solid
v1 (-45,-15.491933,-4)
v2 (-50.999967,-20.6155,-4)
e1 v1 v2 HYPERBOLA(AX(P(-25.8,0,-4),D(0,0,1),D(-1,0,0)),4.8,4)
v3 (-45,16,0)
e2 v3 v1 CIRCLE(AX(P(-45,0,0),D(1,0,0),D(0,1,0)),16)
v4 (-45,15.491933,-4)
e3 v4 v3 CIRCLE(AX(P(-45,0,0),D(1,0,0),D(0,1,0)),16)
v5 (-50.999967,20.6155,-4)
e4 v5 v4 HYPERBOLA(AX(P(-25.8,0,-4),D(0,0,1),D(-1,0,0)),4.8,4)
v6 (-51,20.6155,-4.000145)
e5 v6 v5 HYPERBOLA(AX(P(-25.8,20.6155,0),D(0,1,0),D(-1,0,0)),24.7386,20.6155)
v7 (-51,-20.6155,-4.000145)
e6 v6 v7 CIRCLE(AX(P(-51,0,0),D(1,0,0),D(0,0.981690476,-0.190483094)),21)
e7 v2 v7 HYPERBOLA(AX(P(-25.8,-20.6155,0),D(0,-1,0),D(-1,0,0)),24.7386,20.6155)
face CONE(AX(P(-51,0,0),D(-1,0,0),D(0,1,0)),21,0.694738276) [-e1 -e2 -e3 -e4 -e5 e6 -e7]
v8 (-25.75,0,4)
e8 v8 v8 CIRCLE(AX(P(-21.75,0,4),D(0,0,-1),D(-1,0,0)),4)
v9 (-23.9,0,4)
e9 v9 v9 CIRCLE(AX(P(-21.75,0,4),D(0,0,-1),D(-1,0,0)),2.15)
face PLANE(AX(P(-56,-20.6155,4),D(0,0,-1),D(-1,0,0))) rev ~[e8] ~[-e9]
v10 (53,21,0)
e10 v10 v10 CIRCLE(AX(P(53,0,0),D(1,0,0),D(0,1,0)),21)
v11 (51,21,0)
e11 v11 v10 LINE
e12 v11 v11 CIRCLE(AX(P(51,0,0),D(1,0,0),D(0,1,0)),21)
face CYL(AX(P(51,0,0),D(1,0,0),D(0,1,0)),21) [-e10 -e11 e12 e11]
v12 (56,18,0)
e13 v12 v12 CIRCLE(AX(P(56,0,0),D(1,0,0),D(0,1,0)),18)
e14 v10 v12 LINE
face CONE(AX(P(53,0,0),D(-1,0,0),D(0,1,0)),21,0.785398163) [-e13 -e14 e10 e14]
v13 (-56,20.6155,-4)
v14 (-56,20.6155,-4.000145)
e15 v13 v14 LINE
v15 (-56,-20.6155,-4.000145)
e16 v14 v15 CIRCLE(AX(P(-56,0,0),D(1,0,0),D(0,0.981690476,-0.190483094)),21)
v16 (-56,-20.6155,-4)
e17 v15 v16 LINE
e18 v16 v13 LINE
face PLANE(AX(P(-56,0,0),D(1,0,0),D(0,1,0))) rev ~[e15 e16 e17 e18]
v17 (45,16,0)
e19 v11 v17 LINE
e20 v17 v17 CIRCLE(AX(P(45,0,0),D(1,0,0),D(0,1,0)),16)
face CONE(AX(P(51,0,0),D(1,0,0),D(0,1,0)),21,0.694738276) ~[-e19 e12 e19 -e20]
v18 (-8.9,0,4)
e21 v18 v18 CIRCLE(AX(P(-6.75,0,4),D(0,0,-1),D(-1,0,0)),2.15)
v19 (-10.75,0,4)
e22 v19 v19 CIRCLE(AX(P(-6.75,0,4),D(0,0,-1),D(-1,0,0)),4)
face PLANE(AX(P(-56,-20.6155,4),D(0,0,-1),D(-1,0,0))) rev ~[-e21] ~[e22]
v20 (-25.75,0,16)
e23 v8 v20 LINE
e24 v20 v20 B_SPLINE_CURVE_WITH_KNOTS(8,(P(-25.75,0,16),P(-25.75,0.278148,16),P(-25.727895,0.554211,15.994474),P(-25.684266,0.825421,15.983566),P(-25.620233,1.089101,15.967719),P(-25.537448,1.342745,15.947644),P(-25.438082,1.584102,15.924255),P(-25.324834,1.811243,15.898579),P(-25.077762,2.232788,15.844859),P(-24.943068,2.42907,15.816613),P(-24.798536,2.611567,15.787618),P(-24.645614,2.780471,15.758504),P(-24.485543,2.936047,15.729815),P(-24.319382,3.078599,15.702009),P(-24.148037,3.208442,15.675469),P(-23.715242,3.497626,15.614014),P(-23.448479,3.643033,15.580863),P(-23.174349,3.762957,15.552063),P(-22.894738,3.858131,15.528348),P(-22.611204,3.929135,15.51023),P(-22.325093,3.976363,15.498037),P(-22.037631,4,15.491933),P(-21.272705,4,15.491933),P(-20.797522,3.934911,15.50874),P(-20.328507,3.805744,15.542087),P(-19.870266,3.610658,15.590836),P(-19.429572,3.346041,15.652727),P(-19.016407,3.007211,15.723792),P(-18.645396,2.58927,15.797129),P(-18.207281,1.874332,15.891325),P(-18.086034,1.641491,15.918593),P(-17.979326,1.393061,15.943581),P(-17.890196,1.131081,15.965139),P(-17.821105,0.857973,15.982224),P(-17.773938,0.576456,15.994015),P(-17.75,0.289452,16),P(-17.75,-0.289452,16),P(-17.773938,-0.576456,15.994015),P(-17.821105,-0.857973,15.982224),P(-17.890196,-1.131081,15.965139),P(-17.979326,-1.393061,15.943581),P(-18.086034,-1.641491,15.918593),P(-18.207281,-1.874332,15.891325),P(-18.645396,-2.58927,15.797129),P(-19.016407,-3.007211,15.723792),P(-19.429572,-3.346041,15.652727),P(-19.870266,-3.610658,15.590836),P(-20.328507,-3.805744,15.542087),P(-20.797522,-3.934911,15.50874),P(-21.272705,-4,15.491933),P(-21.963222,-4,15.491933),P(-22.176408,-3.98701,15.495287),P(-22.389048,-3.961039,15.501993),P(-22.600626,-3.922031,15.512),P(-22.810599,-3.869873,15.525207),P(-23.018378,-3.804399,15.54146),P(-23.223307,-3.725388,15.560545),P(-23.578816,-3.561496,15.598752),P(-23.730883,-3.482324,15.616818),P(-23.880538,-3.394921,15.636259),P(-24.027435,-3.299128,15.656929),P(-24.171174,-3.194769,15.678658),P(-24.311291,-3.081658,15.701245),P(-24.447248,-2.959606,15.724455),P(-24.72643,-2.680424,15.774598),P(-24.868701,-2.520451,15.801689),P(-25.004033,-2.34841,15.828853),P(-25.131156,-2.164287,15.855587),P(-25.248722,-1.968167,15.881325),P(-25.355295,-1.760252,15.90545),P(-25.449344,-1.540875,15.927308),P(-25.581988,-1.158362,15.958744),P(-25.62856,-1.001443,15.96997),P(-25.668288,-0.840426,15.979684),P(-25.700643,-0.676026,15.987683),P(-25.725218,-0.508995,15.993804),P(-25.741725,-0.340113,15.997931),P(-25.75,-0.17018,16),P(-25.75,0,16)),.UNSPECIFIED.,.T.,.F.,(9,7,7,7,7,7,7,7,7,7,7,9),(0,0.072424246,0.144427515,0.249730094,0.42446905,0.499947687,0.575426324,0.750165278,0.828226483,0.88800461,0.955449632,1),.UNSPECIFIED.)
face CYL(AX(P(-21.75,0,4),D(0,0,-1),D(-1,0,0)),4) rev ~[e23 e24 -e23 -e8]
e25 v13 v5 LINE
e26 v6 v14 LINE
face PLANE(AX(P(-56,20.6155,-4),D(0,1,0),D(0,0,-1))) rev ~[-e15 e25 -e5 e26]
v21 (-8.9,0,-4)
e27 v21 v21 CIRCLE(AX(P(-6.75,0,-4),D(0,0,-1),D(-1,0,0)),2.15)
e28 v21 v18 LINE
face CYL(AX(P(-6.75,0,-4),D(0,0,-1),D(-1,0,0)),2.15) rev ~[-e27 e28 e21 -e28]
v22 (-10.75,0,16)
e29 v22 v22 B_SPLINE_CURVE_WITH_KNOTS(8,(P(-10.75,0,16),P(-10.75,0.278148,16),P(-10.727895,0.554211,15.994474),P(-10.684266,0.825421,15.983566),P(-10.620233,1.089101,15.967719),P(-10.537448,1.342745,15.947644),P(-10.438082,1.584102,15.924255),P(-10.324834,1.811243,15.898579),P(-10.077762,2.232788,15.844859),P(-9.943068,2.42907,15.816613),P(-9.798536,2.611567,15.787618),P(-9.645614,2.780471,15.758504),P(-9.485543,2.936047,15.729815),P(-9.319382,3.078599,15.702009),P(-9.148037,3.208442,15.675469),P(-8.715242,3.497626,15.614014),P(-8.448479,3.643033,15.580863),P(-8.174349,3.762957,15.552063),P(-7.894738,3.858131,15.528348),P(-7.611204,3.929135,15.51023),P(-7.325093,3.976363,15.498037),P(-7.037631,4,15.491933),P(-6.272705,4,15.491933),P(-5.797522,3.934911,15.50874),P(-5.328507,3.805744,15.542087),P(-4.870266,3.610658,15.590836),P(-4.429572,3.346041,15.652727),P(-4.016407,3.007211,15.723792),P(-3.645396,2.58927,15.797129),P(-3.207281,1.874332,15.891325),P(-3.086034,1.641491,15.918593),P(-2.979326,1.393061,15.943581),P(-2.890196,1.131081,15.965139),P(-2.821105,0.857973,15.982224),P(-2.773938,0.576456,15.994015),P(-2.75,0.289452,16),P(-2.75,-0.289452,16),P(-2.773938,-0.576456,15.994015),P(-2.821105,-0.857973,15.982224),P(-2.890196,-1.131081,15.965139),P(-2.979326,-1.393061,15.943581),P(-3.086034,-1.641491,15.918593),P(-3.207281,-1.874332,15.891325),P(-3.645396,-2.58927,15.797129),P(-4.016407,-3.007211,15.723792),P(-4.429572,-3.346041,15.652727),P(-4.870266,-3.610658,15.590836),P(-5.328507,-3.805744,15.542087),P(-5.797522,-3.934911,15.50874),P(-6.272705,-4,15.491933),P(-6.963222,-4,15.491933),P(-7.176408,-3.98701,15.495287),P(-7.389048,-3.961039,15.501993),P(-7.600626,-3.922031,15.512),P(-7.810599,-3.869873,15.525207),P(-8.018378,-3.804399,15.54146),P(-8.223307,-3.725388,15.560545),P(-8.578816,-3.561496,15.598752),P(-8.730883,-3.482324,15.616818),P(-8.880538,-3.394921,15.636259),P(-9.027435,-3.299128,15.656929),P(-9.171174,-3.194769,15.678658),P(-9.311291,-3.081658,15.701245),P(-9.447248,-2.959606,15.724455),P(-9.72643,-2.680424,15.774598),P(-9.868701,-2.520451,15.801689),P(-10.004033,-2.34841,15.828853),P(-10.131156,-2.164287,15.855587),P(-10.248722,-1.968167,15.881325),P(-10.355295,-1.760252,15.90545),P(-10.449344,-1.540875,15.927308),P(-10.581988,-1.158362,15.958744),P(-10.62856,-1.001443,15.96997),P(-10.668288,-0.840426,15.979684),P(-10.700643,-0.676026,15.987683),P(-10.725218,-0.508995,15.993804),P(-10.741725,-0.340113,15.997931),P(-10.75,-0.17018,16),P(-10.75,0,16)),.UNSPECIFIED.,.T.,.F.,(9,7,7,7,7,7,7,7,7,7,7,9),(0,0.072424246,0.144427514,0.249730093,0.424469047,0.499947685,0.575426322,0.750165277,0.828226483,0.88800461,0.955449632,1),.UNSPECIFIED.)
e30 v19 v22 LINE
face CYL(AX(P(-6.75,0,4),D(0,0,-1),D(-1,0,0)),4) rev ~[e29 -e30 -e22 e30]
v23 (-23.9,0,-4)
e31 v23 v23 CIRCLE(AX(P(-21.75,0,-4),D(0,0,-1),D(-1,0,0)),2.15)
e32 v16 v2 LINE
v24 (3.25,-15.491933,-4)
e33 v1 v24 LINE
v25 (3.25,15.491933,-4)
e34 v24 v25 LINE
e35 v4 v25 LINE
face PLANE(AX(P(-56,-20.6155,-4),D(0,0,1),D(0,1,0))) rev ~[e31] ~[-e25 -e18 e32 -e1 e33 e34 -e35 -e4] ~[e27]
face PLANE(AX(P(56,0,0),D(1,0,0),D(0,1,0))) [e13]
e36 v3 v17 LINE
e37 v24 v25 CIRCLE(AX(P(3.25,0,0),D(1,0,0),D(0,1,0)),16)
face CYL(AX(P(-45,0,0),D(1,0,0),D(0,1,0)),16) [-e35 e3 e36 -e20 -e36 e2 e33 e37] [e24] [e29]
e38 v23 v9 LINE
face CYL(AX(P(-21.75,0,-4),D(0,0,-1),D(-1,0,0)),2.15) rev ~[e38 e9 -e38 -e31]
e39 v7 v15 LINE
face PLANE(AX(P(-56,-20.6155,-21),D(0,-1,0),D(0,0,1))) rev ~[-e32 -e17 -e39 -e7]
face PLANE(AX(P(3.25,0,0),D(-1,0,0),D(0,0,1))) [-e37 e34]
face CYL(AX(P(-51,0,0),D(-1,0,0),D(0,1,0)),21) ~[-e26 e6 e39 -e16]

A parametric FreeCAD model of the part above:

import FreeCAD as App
import Part
import Sketcher

V = App.Vector
Q = App.Units.Quantity


def edges_at(feature, points):
    """Names of the edges that pass closest to the given points."""
    edges = feature.Shape.Edges
    near = lambda p: min(range(len(edges)), key=lambda i: edges[i].distToShape(Part.Vertex(*p))[0])
    return sorted({f"Edge{near(p) + 1}" for p in points})


def add_polygon(sketch, points):
    """Adds a closed chain of lines whose ends are joined by coincident constraints."""
    first, n = sketch.GeometryCount, len(points)
    for a, b in zip(points, points[1:] + points[:1]):
        sketch.addGeometry(Part.LineSegment(App.Vector(*a, 0), App.Vector(*b, 0)), False)
    for i in range(n):
        sketch.addConstraint(Sketcher.Constraint("Coincident", first + i, 2, first + (i + 1) % n, 1))

doc = App.newDocument("Part")
body = doc.addObject("PartDesign::Body", "Body")

sketch1 = body.newObject("Sketcher::SketchObject", "Sketch")
sketch1.AttachmentSupport = (doc.getObject("XY_Plane"), [""])
sketch1.MapMode = "FlatFace"
add_polygon(sketch1, [(45, 16), (-45, 16), (-51, 21), (-56, 21), (-56, 0), (56, 0), (56, 21), (51, 21)])
sketch1.addConstraint(Sketcher.Constraint("Horizontal", 0))
sketch1.addConstraint(Sketcher.Constraint("Horizontal", 2))
sketch1.addConstraint(Sketcher.Constraint("Vertical", 3))
sketch1.addConstraint(Sketcher.Constraint("Horizontal", 4))
sketch1.addConstraint(Sketcher.Constraint("Vertical", 5))
sketch1.addConstraint(Sketcher.Constraint("Horizontal", 6))
sketch1.addConstraint(Sketcher.Constraint("Symmetric", 3, 2, 4, 2, -1, 1))
sketch1.addConstraint(Sketcher.Constraint("Symmetric", 1, 2, 6, 2, -2))
sketch1.addConstraint(Sketcher.Constraint("Equal", 1, 7))
sketch1.addConstraint(Sketcher.Constraint("DistanceX", 0, 2, 0, 1, Q("90 mm")))
sketch1.addConstraint(Sketcher.Constraint("DistanceX", 2, 2, 2, 1, Q("5 mm")))
sketch1.addConstraint(Sketcher.Constraint("DistanceY", -1, 1, 0, 2, Q("16 mm")))
sketch1.addConstraint(Sketcher.Constraint("DistanceX", 1, 2, 0, 2, Q("6 mm")))
sketch1.addConstraint(Sketcher.Constraint("DistanceY", 0, 2, 1, 2, Q("5 mm")))
revolution = body.newObject("PartDesign::Revolution", "Revolution")
revolution.Profile = sketch1
revolution.ReferenceAxis = (sketch1, ["H_Axis"])
revolution.Angle = 360

sketch2 = body.newObject("Sketcher::SketchObject", "Sketch001")
sketch2.AttachmentSupport = (doc.getObject("YZ_Plane"), [""])
sketch2.MapMode = "FlatFace"
sketch2.AttachmentOffset = App.Placement(V(0, 0, -56), App.Rotation())
add_polygon(sketch2, [(-21, -4), (21, -4), (21, -21), (-21, -21)])
sketch2.addConstraint(Sketcher.Constraint("Horizontal", 0))
sketch2.addConstraint(Sketcher.Constraint("Vertical", 1))
sketch2.addConstraint(Sketcher.Constraint("Horizontal", 2))
sketch2.addConstraint(Sketcher.Constraint("Vertical", 3))
sketch2.addConstraint(Sketcher.Constraint("DistanceY", 1, 2, 1, 1, Q("17 mm")))
sketch2.addConstraint(Sketcher.Constraint("DistanceY", 0, 2, -1, 1, Q("4 mm")))
sketch2.addConstraint(Sketcher.Constraint("DistanceX", 0, 1, 0, 2, Q("41.231 mm")))
sketch2.addConstraint(Sketcher.Constraint("DistanceX", -1, 1, 0, 2, Q("20.6155 mm")))
pocket1 = body.newObject("PartDesign::Pocket", "Pocket")
pocket1.Profile = sketch2
pocket1.Length = 59.25
pocket1.Reversed = True

sketch3 = body.newObject("Sketcher::SketchObject", "Sketch002")
sketch3.AttachmentSupport = (doc.getObject("XY_Plane"), [""])
sketch3.MapMode = "FlatFace"
sketch3.AttachmentOffset = App.Placement(V(0, 0, -4), App.Rotation())
sketch3.addGeometry(Part.Circle(V(-21.8, 0, 0), V(0, 0, 1), 2.1), False)
sketch3.addGeometry(Part.Circle(V(-6.8, 0, 0), V(0, 0, 1), 2.1), False)
sketch3.addConstraint(Sketcher.Constraint("Equal", 0, 1))
sketch3.addConstraint(Sketcher.Constraint("PointOnObject", 0, 3, -1))
sketch3.addConstraint(Sketcher.Constraint("PointOnObject", 1, 3, -1))
sketch3.addConstraint(Sketcher.Constraint("Diameter", 0, Q("4.3 mm")))
sketch3.addConstraint(Sketcher.Constraint("DistanceX", 0, 3, 1, 3, Q("15 mm")))
sketch3.addConstraint(Sketcher.Constraint("DistanceX", 0, 3, -1, 1, Q("21.75 mm")))
pocket2 = body.newObject("PartDesign::Pocket", "Pocket001")
pocket2.Profile = sketch3
pocket2.Type = "UpToFirst"
pocket2.Reversed = True

sketch4 = body.newObject("Sketcher::SketchObject", "Sketch003")
sketch4.AttachmentSupport = (doc.getObject("XY_Plane"), [""])
sketch4.MapMode = "FlatFace"
sketch4.AttachmentOffset = App.Placement(V(0, 0, 4), App.Rotation())
sketch4.addGeometry(Part.Circle(V(-21.8, 0, 0), V(0, 0, 1), 4), False)
sketch4.addGeometry(Part.Circle(V(-6.8, 0, 0), V(0, 0, 1), 4), False)
sketch4.addConstraint(Sketcher.Constraint("Equal", 0, 1))
sketch4.addConstraint(Sketcher.Constraint("PointOnObject", 0, 3, -1))
sketch4.addConstraint(Sketcher.Constraint("PointOnObject", 1, 3, -1))
sketch4.addConstraint(Sketcher.Constraint("Diameter", 0, Q("8 mm")))
sketch4.addConstraint(Sketcher.Constraint("DistanceX", 0, 3, 1, 3, Q("15 mm")))
sketch4.addConstraint(Sketcher.Constraint("DistanceX", 0, 3, -1, 1, Q("21.75 mm")))
pocket3 = body.newObject("PartDesign::Pocket", "Pocket002")
pocket3.Profile = sketch4
pocket3.Length = 12
pocket3.Reversed = True
doc.recompute()

chamfer = body.newObject("PartDesign::Chamfer", "Chamfer")
chamfer.Base = (pocket3, edges_at(pocket3, [(56, -21, 0)]))
chamfer.Size = 3

doc.recompute()
